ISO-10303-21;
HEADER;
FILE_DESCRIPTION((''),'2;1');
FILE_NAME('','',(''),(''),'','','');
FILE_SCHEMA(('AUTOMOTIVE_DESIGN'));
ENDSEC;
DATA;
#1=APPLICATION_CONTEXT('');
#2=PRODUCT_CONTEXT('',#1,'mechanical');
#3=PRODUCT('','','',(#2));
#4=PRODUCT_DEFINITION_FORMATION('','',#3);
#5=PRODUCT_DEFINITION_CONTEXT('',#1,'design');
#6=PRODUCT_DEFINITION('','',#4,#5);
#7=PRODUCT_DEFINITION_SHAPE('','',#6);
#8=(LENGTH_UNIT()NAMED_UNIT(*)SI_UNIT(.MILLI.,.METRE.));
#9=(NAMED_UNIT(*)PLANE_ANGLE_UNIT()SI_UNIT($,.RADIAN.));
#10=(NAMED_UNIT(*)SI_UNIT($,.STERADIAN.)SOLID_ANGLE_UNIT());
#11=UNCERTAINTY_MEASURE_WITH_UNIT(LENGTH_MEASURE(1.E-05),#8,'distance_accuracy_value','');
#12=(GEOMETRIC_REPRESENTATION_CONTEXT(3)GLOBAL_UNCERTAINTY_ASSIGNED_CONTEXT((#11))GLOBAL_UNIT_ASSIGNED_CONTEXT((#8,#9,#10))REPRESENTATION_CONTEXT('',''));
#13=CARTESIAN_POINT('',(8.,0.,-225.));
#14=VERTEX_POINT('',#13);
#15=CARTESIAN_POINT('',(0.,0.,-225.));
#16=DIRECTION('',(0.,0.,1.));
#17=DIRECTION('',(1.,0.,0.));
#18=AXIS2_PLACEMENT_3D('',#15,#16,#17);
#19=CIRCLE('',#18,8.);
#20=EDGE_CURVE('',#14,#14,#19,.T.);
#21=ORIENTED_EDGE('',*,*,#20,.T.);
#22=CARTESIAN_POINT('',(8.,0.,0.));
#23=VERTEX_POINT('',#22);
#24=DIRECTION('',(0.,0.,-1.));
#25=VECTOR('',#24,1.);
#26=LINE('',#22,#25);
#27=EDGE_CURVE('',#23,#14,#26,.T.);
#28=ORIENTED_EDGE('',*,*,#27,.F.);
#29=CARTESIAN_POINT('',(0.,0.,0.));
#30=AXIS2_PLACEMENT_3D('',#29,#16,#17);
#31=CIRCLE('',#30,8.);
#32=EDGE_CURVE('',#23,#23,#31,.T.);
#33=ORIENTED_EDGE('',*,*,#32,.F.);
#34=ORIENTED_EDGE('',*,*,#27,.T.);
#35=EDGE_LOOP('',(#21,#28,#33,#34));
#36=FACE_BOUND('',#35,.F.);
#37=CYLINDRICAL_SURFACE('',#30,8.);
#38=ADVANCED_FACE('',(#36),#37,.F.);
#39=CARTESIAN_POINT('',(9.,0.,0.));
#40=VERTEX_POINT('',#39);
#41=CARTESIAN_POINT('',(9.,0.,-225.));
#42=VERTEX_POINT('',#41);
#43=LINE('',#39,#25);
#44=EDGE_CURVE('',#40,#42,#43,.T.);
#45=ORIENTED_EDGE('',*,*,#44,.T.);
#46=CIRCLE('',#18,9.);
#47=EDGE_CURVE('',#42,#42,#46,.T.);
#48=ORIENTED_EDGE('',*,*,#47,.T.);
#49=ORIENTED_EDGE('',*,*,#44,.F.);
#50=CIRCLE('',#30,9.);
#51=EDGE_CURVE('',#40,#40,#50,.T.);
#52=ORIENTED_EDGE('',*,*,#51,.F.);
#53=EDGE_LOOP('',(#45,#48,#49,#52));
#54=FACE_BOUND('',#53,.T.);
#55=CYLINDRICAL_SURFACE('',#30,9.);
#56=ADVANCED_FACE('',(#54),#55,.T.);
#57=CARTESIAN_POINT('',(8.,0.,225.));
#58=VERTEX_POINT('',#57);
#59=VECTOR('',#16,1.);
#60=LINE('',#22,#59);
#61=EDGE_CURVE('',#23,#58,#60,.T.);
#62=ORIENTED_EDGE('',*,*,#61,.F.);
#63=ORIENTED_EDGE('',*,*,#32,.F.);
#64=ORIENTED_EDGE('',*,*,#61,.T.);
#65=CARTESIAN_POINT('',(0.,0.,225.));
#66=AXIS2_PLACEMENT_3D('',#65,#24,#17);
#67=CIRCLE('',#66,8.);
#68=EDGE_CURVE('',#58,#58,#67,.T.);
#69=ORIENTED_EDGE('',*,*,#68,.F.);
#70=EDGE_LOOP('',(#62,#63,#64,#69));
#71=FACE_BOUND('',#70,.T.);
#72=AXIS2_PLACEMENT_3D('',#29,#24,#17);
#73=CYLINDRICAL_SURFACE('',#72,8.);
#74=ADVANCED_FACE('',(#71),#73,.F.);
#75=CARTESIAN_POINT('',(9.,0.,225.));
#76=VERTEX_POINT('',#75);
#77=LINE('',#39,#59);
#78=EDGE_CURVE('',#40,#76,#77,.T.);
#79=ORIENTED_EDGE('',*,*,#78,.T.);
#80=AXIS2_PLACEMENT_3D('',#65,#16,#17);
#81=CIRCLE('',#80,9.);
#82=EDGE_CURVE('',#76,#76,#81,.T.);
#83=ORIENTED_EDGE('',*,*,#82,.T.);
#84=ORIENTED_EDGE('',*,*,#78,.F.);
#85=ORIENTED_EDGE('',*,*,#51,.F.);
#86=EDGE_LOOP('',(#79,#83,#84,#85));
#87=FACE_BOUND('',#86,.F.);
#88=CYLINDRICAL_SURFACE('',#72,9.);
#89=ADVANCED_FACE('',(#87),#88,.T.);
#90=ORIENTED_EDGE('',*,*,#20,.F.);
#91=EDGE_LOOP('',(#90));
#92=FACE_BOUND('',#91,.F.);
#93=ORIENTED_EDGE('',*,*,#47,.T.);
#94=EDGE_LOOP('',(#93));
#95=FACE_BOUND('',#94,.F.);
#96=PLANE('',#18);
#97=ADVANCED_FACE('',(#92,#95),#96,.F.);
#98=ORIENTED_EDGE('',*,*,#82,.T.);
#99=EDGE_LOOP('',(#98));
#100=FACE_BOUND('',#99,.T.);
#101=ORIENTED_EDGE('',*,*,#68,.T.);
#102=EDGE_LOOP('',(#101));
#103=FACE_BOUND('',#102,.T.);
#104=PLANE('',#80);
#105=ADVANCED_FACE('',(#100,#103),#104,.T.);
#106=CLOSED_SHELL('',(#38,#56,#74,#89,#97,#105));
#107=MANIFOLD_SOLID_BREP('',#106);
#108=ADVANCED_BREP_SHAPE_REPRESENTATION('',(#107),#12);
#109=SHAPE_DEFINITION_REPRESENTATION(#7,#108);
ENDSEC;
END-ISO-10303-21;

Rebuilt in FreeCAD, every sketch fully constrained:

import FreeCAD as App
import Part
import Sketcher
from FreeCAD import Vector
Q = App.Units.Quantity


def faces_at(feature, points):
    """Names of the faces that lie closest to the given points."""
    faces = feature.Shape.Faces
    near = lambda p: min(range(len(faces)), key=lambda i: faces[i].distToShape(Part.Vertex(*p))[0])
    return sorted({f"Face{near(p) + 1}" for p in points})

doc = App.newDocument("Part")
body = doc.addObject("PartDesign::Body", "Body")

# Sketch on XY plane
sketch1 = body.newObject("Sketcher::SketchObject", "Sketch")
sketch1.AttachmentSupport = (doc.getObject("XY_Plane"), [""])
sketch1.MapMode = "FlatFace"
sketch1.addGeometry(Part.Circle(Vector(0, 0, 0), Vector(0, 0, 1), 9), False)
sketch1.addConstraint([
    Sketcher.Constraint("Coincident", 0, 3, -1, 1),
    Sketcher.Constraint("Diameter", 0, Q("18 mm")),
])
pad1 = body.newObject("PartDesign::Pad", "Pad")
pad1.Profile = sketch1
pad1.Length = 450
pad1.Midplane = True
doc.recompute()

thickness = body.newObject("PartDesign::Thickness", "Thickness")
thickness.Base = (pad1, faces_at(pad1, [(2.245, -1.989, 225), (2.245, -1.989, -225)]))
thickness.Value = 1
thickness.Reversed = True
thickness.Join = "Intersection"

doc.recompute()
